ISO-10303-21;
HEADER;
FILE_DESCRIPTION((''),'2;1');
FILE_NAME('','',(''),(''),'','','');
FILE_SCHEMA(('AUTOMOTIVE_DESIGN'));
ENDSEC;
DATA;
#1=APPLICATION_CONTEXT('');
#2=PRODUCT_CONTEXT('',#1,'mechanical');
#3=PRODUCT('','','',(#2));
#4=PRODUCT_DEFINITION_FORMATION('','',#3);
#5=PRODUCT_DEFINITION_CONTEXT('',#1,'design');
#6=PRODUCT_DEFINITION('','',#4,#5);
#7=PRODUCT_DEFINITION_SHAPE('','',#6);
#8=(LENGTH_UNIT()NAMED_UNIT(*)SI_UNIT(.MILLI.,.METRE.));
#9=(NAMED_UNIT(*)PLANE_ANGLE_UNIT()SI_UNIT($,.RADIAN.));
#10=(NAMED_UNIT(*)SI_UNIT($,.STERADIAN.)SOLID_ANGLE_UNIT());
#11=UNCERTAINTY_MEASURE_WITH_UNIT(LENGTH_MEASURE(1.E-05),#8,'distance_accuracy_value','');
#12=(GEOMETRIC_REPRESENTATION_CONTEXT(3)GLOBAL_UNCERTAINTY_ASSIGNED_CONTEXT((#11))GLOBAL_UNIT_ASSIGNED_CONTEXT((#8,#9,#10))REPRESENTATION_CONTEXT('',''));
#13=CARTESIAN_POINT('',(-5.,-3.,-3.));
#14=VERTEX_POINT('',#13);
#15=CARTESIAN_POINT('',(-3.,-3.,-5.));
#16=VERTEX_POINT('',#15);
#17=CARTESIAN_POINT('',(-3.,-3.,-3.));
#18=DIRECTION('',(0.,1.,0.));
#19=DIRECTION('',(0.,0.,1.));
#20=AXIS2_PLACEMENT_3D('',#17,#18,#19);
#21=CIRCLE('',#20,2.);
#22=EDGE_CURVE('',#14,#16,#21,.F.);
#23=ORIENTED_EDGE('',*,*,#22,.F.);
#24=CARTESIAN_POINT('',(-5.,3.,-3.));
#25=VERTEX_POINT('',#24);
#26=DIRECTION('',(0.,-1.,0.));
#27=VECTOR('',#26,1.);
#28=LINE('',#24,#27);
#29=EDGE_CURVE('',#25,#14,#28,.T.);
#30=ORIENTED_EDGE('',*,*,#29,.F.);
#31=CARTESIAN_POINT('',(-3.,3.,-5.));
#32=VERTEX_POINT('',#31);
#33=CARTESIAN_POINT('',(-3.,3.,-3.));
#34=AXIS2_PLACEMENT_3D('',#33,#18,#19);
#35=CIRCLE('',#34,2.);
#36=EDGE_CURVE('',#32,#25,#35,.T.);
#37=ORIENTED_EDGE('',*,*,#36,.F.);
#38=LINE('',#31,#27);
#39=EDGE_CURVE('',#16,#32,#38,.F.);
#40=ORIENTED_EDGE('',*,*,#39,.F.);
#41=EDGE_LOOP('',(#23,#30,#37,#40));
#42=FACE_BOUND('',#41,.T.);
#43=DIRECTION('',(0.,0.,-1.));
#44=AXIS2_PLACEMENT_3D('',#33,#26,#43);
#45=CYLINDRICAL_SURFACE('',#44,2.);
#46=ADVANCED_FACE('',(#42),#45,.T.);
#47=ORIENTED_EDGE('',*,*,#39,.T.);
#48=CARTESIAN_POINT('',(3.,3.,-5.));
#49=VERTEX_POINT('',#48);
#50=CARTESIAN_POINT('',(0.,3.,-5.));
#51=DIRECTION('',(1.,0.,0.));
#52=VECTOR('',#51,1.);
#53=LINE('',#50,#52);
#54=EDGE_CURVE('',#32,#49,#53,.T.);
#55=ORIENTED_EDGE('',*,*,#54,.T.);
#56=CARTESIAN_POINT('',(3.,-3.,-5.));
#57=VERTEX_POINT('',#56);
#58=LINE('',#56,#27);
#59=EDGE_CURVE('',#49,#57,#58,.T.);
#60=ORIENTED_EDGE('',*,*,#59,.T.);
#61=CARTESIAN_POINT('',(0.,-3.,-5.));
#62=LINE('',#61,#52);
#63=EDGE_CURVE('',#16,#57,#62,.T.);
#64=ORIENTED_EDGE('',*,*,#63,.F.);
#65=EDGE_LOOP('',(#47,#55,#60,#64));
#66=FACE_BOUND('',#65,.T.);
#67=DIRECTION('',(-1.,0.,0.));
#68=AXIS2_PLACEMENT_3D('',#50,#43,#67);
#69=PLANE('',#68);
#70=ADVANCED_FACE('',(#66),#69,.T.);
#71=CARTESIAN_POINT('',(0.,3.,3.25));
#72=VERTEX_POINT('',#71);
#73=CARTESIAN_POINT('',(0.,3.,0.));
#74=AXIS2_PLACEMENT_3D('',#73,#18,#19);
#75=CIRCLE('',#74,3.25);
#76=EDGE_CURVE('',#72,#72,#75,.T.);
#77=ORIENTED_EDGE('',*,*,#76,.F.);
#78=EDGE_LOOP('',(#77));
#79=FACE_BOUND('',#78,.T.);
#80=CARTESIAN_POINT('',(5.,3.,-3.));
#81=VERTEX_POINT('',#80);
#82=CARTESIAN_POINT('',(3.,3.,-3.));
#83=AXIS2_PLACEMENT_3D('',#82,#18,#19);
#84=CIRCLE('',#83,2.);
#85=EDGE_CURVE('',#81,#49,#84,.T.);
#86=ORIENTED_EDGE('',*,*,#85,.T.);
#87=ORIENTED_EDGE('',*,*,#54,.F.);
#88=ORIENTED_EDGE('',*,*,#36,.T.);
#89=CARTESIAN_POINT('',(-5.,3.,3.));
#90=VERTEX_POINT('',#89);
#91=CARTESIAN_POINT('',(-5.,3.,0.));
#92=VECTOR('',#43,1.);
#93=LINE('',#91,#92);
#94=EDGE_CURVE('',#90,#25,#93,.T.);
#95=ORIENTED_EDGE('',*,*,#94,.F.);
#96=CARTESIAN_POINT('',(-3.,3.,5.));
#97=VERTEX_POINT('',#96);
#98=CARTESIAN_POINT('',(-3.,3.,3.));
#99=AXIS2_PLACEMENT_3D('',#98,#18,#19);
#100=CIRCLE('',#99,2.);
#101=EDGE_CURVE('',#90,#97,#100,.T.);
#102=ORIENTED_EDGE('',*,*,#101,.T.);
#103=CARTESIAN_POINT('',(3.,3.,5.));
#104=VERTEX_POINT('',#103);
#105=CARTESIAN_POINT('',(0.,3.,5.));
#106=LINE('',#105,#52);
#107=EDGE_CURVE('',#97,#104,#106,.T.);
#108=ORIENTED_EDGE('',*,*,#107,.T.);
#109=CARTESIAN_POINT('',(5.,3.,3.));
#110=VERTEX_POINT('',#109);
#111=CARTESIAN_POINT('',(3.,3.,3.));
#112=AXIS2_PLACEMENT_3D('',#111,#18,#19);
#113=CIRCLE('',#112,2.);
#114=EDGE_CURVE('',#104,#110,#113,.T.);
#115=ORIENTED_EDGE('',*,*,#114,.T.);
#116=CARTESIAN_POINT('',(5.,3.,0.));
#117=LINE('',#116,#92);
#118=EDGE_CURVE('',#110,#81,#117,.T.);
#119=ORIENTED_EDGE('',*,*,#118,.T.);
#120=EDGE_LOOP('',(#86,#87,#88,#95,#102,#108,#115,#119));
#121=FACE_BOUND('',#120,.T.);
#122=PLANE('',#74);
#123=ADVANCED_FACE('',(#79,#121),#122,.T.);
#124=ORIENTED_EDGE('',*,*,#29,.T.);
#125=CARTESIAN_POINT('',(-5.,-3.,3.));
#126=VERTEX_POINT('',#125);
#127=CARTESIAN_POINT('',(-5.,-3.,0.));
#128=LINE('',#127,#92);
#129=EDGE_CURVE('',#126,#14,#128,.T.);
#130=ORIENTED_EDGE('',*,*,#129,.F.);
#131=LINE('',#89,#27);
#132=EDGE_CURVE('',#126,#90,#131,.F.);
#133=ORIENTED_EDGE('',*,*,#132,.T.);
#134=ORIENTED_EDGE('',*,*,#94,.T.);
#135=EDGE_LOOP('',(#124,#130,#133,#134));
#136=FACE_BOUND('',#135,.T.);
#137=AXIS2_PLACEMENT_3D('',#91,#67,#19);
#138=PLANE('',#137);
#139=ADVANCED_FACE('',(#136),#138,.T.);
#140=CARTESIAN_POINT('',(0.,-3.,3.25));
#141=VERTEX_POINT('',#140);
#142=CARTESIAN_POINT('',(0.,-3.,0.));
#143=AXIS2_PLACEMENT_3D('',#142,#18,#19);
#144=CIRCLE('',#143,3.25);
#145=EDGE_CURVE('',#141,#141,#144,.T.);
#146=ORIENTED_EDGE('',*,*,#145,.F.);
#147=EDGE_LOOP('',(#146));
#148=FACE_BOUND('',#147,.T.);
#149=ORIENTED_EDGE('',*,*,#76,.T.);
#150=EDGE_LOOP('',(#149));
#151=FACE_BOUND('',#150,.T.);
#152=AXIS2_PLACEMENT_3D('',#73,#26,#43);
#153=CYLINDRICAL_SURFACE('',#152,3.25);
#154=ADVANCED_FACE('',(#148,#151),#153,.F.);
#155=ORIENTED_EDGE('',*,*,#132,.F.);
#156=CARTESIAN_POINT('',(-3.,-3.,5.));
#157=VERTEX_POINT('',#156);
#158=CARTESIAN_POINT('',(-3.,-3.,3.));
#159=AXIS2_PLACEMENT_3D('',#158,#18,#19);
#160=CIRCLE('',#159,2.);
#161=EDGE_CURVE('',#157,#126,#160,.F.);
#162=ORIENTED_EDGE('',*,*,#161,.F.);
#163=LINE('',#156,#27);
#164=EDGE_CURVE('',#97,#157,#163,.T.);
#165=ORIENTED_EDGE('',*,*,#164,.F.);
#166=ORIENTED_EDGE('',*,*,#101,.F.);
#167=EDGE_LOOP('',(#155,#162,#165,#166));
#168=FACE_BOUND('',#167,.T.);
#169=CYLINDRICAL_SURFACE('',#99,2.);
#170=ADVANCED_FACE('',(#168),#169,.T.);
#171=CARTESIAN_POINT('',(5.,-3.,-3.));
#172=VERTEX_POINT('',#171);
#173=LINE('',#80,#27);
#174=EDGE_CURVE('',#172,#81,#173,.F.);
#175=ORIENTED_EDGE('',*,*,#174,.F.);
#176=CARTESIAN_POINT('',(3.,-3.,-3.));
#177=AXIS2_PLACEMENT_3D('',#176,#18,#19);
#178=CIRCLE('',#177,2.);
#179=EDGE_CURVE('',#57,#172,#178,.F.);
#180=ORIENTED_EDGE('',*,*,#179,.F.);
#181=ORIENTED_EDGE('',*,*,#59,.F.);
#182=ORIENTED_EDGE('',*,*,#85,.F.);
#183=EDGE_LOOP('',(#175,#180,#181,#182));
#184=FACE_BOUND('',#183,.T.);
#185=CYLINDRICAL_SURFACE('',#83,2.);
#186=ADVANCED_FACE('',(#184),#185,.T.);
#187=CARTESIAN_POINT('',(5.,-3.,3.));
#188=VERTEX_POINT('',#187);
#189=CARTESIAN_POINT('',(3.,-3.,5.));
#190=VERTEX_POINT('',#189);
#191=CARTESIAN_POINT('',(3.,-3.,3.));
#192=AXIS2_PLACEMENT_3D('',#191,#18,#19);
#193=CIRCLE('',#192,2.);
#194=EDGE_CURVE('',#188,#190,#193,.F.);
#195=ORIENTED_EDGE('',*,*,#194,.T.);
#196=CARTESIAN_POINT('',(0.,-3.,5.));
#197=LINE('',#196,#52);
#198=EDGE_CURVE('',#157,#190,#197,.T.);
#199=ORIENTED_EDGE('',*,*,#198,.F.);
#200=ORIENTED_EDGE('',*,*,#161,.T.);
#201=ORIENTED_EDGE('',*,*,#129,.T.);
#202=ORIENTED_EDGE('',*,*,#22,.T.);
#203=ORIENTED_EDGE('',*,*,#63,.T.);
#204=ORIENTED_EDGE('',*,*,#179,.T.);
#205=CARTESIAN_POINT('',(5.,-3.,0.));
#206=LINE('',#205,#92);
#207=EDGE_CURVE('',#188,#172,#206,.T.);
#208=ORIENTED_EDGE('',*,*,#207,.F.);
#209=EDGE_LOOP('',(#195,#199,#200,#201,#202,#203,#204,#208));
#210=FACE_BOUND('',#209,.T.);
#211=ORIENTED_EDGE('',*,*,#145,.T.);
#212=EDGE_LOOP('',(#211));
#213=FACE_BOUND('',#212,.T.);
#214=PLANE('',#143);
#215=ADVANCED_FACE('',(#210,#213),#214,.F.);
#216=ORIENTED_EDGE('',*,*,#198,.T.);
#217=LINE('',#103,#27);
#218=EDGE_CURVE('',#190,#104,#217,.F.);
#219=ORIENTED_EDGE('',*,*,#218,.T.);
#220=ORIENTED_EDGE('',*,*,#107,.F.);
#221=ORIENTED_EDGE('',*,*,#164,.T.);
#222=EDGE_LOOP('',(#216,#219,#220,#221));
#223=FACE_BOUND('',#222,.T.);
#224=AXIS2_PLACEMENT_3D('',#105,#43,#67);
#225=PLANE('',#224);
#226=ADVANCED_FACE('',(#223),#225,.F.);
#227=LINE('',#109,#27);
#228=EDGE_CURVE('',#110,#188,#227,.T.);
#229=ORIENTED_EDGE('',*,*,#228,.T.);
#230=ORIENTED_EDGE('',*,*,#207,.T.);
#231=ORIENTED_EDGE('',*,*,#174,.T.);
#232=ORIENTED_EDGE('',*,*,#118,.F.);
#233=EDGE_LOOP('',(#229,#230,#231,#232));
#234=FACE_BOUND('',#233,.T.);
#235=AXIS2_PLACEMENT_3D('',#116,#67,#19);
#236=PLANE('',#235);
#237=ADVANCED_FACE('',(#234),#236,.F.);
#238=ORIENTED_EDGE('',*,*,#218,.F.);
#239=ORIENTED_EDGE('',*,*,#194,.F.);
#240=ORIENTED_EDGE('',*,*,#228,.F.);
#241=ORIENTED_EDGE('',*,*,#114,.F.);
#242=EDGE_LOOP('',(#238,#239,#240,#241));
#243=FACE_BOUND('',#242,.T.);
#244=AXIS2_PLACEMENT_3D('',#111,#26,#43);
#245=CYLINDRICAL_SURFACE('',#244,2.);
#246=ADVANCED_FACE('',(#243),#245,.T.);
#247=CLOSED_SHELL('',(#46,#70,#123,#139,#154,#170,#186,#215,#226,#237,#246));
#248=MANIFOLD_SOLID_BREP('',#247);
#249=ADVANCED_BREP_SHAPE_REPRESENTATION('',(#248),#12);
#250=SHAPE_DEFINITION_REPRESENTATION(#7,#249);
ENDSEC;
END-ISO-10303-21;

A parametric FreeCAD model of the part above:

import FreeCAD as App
import Part
import Sketcher

V = App.Vector
Q = App.Units.Quantity


def edges_at(feature, points):
    """Names of the edges that pass closest to the given points."""
    edges = feature.Shape.Edges
    near = lambda p: min(range(len(edges)), key=lambda i: edges[i].distToShape(Part.Vertex(*p))[0])
    return sorted({f"Edge{near(p) + 1}" for p in points})

doc = App.newDocument("Part")
body = doc.addObject("PartDesign::Body", "Body")

# Sketch on XZ plane
sketch1 = doc.addObject("Sketcher::SketchObject", "Sketch")
body.addObject(sketch1)
sketch1.AttachmentSupport = (doc.XZ_Plane, [""])
sketch1.MapMode = "FlatFace"
sketch1.addGeometry(Part.LineSegment(V(-5, -5, 0), V(-5, 5, 0)), False)
sketch1.addGeometry(Part.LineSegment(V(-5, 5, 0), V(5, 5, 0)), False)
sketch1.addGeometry(Part.LineSegment(V(5, 5, 0), V(5, -5, 0)), False)
sketch1.addGeometry(Part.LineSegment(V(5, -5, 0), V(-5, -5, 0)), False)
sketch1.addGeometry(Part.Circle(V(0, 0, 0), V(0, 0, 1), 3.2), False)
sketch1.addConstraint(Sketcher.Constraint("Coincident", 0, 2, 1, 1))
sketch1.addConstraint(Sketcher.Constraint("Coincident", 1, 2, 2, 1))
sketch1.addConstraint(Sketcher.Constraint("Coincident", 2, 2, 3, 1))
sketch1.addConstraint(Sketcher.Constraint("Coincident", 3, 2, 0, 1))
sketch1.addConstraint(Sketcher.Constraint("Vertical", 0))
sketch1.addConstraint(Sketcher.Constraint("Horizontal", 1))
sketch1.addConstraint(Sketcher.Constraint("Vertical", 2))
sketch1.addConstraint(Sketcher.Constraint("Horizontal", 3))
sketch1.addConstraint(Sketcher.Constraint("Coincident", 4, 3, -1, 1))
sketch1.addConstraint(Sketcher.Constraint("Symmetric", 0, 2, 2, 2, -1, 1))
sketch1.addConstraint(Sketcher.Constraint("Equal", 3, 0))
sketch1.addConstraint(Sketcher.Constraint("Diameter", 4, Q("6.5 mm")))
sketch1.addConstraint(Sketcher.Constraint("DistanceX", 1, 1, 1, 2, Q("10 mm")))
pad1 = doc.addObject("PartDesign::Pad", "Pad")
body.addObject(pad1)
pad1.Profile = sketch1
pad1.Length = 6
pad1.Midplane = True
doc.recompute()

fillet = doc.addObject("PartDesign::Fillet", "Fillet")
body.addObject(fillet)
fillet.Base = (pad1, edges_at(pad1, [
    (-5, 0, -5),
    (5, 0, -5),
    (5, 0, 5),
    (-5, 0, 5),
]))
fillet.Radius = 2

doc.recompute()
